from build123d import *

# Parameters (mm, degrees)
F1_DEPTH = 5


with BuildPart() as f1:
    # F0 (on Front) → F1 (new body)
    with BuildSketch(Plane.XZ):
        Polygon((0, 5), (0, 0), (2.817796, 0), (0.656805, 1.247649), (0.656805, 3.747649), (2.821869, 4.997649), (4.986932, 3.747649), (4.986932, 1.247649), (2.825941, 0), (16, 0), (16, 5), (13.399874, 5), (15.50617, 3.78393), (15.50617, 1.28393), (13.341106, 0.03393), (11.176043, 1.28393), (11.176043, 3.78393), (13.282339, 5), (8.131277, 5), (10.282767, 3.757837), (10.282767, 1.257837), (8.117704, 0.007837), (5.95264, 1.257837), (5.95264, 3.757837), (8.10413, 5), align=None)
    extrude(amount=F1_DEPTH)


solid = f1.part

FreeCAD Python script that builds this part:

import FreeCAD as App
import Part
import Sketcher
from FreeCAD import Vector
Q = App.Units.Quantity


def add_polygon(sketch, points):
    """Adds a closed chain of lines whose ends are joined by coincident constraints."""
    first, n = sketch.GeometryCount, len(points)
    for a, b in zip(points, points[1:] + points[:1]):
        sketch.addGeometry(Part.LineSegment(App.Vector(*a, 0), App.Vector(*b, 0)), False)
    for i in range(n):
        sketch.addConstraint(Sketcher.Constraint("Coincident", first + i, 2, first + (i + 1) % n, 1))

doc = App.newDocument("Part")
body = doc.addObject("PartDesign::Body", "Body")

sketch1 = body.newObject("Sketcher::SketchObject", "Sketch")
sketch1.AttachmentSupport = (doc.getObject("XZ_Plane"), [""])
sketch1.MapMode = "FlatFace"
add_polygon(sketch1, [(0, 5), (0, 0), (2.8, 0), (0.7, 1.2), (0.7, 3.7), (2.8, 5), (5, 3.7), (5, 1.2), (2.8, 0), (16, 0), (16, 5), (13.4, 5), (15.5, 3.8), (15.5, 1.3), (13.3, 0), (11.2, 1.3), (11.2, 3.8), (13.3, 5), (8.1, 5), (10.3, 3.8), (10.3, 1.3), (8.1, 0), (6, 1.3), (6, 3.8), (8.1, 5)])
sketch1.addConstraint([
    Sketcher.Constraint("Vertical", 0),
    Sketcher.Constraint("Horizontal", 1),
    Sketcher.Constraint("Vertical", 3),
    Sketcher.Constraint("Vertical", 6),
    Sketcher.Constraint("Horizontal", 8),
    Sketcher.Constraint("Vertical", 9),
    Sketcher.Constraint("Horizontal", 10),
    Sketcher.Constraint("Vertical", 12),
    Sketcher.Constraint("Vertical", 15),
    Sketcher.Constraint("Horizontal", 17),
    Sketcher.Constraint("Vertical", 19),
    Sketcher.Constraint("Vertical", 22),
    Sketcher.Constraint("Horizontal", 24),
    Sketcher.Constraint("Coincident", 0, 2, -1, 1),
    Sketcher.Constraint("PointOnObject", 7, 2, -1),
    Sketcher.Constraint("Parallel", 2, 5),
    Sketcher.Constraint("Parallel", 4, 7),
    Sketcher.Constraint("Parallel", 5, 11),
    Sketcher.Constraint("Parallel", 7, 13),
    Sketcher.Constraint("Parallel", 11, 14),
    Sketcher.Constraint("Parallel", 13, 16),
    Sketcher.Constraint("Parallel", 14, 18),
    Sketcher.Constraint("Parallel", 16, 20),
    Sketcher.Constraint("Parallel", 18, 21),
    Sketcher.Constraint("Parallel", 20, 23),
    Sketcher.Constraint("Horizontal", 3, 2, 5, 2),
    Sketcher.Constraint("Horizontal", 2, 2, 6, 2),
    Sketcher.Constraint("Horizontal", 12, 2, 14, 2),
    Sketcher.Constraint("Horizontal", 11, 2, 15, 2),
    Sketcher.Constraint("Horizontal", 10, 2, 16, 2),
    Sketcher.Constraint("Horizontal", 19, 2, 21, 2),
    Sketcher.Constraint("Horizontal", 18, 2, 22, 2),
    Sketcher.Constraint("Horizontal", 17, 2, 23, 2),
    Sketcher.Constraint("Equal", 6, 12),
    Sketcher.Constraint("Equal", 15, 19),
    Sketcher.Constraint("Equal", 4, 5),
    Sketcher.Constraint("Equal", 5, 13),
    Sketcher.Constraint("Equal", 14, 20),
    Sketcher.Constraint("DistanceY", 0, 2, 0, 1, 5.0),
    Sketcher.Constraint("Angle", 2, Q("149.999995 deg")),
    Sketcher.Constraint("DistanceY", 3, 1, 3, 2, 2.5),
    Sketcher.Constraint("DistanceX", -1, 1, 8, 2, 16.0),
    Sketcher.Constraint("Distance", 4, 2.5),
    Sketcher.Constraint("DistanceX", 8, 1, 8, 2, 13.174059),
    Sketcher.Constraint("DistanceX", 17, 2, 17, 1, 5.151062),
    Sketcher.Constraint("DistanceX", 24, 2, 24, 1, 8.10413),
    Sketcher.Constraint("DistanceX", 7, 2, 21, 2, 3.126699),
    Sketcher.Constraint("Distance", 11, 2.432141),
    Sketcher.Constraint("DistanceX", 1, 1, 1, 2, 2.817796),
])
pad1 = body.newObject("PartDesign::Pad", "Pad")
pad1.Profile = sketch1
pad1.Length = 5

doc.recompute()
